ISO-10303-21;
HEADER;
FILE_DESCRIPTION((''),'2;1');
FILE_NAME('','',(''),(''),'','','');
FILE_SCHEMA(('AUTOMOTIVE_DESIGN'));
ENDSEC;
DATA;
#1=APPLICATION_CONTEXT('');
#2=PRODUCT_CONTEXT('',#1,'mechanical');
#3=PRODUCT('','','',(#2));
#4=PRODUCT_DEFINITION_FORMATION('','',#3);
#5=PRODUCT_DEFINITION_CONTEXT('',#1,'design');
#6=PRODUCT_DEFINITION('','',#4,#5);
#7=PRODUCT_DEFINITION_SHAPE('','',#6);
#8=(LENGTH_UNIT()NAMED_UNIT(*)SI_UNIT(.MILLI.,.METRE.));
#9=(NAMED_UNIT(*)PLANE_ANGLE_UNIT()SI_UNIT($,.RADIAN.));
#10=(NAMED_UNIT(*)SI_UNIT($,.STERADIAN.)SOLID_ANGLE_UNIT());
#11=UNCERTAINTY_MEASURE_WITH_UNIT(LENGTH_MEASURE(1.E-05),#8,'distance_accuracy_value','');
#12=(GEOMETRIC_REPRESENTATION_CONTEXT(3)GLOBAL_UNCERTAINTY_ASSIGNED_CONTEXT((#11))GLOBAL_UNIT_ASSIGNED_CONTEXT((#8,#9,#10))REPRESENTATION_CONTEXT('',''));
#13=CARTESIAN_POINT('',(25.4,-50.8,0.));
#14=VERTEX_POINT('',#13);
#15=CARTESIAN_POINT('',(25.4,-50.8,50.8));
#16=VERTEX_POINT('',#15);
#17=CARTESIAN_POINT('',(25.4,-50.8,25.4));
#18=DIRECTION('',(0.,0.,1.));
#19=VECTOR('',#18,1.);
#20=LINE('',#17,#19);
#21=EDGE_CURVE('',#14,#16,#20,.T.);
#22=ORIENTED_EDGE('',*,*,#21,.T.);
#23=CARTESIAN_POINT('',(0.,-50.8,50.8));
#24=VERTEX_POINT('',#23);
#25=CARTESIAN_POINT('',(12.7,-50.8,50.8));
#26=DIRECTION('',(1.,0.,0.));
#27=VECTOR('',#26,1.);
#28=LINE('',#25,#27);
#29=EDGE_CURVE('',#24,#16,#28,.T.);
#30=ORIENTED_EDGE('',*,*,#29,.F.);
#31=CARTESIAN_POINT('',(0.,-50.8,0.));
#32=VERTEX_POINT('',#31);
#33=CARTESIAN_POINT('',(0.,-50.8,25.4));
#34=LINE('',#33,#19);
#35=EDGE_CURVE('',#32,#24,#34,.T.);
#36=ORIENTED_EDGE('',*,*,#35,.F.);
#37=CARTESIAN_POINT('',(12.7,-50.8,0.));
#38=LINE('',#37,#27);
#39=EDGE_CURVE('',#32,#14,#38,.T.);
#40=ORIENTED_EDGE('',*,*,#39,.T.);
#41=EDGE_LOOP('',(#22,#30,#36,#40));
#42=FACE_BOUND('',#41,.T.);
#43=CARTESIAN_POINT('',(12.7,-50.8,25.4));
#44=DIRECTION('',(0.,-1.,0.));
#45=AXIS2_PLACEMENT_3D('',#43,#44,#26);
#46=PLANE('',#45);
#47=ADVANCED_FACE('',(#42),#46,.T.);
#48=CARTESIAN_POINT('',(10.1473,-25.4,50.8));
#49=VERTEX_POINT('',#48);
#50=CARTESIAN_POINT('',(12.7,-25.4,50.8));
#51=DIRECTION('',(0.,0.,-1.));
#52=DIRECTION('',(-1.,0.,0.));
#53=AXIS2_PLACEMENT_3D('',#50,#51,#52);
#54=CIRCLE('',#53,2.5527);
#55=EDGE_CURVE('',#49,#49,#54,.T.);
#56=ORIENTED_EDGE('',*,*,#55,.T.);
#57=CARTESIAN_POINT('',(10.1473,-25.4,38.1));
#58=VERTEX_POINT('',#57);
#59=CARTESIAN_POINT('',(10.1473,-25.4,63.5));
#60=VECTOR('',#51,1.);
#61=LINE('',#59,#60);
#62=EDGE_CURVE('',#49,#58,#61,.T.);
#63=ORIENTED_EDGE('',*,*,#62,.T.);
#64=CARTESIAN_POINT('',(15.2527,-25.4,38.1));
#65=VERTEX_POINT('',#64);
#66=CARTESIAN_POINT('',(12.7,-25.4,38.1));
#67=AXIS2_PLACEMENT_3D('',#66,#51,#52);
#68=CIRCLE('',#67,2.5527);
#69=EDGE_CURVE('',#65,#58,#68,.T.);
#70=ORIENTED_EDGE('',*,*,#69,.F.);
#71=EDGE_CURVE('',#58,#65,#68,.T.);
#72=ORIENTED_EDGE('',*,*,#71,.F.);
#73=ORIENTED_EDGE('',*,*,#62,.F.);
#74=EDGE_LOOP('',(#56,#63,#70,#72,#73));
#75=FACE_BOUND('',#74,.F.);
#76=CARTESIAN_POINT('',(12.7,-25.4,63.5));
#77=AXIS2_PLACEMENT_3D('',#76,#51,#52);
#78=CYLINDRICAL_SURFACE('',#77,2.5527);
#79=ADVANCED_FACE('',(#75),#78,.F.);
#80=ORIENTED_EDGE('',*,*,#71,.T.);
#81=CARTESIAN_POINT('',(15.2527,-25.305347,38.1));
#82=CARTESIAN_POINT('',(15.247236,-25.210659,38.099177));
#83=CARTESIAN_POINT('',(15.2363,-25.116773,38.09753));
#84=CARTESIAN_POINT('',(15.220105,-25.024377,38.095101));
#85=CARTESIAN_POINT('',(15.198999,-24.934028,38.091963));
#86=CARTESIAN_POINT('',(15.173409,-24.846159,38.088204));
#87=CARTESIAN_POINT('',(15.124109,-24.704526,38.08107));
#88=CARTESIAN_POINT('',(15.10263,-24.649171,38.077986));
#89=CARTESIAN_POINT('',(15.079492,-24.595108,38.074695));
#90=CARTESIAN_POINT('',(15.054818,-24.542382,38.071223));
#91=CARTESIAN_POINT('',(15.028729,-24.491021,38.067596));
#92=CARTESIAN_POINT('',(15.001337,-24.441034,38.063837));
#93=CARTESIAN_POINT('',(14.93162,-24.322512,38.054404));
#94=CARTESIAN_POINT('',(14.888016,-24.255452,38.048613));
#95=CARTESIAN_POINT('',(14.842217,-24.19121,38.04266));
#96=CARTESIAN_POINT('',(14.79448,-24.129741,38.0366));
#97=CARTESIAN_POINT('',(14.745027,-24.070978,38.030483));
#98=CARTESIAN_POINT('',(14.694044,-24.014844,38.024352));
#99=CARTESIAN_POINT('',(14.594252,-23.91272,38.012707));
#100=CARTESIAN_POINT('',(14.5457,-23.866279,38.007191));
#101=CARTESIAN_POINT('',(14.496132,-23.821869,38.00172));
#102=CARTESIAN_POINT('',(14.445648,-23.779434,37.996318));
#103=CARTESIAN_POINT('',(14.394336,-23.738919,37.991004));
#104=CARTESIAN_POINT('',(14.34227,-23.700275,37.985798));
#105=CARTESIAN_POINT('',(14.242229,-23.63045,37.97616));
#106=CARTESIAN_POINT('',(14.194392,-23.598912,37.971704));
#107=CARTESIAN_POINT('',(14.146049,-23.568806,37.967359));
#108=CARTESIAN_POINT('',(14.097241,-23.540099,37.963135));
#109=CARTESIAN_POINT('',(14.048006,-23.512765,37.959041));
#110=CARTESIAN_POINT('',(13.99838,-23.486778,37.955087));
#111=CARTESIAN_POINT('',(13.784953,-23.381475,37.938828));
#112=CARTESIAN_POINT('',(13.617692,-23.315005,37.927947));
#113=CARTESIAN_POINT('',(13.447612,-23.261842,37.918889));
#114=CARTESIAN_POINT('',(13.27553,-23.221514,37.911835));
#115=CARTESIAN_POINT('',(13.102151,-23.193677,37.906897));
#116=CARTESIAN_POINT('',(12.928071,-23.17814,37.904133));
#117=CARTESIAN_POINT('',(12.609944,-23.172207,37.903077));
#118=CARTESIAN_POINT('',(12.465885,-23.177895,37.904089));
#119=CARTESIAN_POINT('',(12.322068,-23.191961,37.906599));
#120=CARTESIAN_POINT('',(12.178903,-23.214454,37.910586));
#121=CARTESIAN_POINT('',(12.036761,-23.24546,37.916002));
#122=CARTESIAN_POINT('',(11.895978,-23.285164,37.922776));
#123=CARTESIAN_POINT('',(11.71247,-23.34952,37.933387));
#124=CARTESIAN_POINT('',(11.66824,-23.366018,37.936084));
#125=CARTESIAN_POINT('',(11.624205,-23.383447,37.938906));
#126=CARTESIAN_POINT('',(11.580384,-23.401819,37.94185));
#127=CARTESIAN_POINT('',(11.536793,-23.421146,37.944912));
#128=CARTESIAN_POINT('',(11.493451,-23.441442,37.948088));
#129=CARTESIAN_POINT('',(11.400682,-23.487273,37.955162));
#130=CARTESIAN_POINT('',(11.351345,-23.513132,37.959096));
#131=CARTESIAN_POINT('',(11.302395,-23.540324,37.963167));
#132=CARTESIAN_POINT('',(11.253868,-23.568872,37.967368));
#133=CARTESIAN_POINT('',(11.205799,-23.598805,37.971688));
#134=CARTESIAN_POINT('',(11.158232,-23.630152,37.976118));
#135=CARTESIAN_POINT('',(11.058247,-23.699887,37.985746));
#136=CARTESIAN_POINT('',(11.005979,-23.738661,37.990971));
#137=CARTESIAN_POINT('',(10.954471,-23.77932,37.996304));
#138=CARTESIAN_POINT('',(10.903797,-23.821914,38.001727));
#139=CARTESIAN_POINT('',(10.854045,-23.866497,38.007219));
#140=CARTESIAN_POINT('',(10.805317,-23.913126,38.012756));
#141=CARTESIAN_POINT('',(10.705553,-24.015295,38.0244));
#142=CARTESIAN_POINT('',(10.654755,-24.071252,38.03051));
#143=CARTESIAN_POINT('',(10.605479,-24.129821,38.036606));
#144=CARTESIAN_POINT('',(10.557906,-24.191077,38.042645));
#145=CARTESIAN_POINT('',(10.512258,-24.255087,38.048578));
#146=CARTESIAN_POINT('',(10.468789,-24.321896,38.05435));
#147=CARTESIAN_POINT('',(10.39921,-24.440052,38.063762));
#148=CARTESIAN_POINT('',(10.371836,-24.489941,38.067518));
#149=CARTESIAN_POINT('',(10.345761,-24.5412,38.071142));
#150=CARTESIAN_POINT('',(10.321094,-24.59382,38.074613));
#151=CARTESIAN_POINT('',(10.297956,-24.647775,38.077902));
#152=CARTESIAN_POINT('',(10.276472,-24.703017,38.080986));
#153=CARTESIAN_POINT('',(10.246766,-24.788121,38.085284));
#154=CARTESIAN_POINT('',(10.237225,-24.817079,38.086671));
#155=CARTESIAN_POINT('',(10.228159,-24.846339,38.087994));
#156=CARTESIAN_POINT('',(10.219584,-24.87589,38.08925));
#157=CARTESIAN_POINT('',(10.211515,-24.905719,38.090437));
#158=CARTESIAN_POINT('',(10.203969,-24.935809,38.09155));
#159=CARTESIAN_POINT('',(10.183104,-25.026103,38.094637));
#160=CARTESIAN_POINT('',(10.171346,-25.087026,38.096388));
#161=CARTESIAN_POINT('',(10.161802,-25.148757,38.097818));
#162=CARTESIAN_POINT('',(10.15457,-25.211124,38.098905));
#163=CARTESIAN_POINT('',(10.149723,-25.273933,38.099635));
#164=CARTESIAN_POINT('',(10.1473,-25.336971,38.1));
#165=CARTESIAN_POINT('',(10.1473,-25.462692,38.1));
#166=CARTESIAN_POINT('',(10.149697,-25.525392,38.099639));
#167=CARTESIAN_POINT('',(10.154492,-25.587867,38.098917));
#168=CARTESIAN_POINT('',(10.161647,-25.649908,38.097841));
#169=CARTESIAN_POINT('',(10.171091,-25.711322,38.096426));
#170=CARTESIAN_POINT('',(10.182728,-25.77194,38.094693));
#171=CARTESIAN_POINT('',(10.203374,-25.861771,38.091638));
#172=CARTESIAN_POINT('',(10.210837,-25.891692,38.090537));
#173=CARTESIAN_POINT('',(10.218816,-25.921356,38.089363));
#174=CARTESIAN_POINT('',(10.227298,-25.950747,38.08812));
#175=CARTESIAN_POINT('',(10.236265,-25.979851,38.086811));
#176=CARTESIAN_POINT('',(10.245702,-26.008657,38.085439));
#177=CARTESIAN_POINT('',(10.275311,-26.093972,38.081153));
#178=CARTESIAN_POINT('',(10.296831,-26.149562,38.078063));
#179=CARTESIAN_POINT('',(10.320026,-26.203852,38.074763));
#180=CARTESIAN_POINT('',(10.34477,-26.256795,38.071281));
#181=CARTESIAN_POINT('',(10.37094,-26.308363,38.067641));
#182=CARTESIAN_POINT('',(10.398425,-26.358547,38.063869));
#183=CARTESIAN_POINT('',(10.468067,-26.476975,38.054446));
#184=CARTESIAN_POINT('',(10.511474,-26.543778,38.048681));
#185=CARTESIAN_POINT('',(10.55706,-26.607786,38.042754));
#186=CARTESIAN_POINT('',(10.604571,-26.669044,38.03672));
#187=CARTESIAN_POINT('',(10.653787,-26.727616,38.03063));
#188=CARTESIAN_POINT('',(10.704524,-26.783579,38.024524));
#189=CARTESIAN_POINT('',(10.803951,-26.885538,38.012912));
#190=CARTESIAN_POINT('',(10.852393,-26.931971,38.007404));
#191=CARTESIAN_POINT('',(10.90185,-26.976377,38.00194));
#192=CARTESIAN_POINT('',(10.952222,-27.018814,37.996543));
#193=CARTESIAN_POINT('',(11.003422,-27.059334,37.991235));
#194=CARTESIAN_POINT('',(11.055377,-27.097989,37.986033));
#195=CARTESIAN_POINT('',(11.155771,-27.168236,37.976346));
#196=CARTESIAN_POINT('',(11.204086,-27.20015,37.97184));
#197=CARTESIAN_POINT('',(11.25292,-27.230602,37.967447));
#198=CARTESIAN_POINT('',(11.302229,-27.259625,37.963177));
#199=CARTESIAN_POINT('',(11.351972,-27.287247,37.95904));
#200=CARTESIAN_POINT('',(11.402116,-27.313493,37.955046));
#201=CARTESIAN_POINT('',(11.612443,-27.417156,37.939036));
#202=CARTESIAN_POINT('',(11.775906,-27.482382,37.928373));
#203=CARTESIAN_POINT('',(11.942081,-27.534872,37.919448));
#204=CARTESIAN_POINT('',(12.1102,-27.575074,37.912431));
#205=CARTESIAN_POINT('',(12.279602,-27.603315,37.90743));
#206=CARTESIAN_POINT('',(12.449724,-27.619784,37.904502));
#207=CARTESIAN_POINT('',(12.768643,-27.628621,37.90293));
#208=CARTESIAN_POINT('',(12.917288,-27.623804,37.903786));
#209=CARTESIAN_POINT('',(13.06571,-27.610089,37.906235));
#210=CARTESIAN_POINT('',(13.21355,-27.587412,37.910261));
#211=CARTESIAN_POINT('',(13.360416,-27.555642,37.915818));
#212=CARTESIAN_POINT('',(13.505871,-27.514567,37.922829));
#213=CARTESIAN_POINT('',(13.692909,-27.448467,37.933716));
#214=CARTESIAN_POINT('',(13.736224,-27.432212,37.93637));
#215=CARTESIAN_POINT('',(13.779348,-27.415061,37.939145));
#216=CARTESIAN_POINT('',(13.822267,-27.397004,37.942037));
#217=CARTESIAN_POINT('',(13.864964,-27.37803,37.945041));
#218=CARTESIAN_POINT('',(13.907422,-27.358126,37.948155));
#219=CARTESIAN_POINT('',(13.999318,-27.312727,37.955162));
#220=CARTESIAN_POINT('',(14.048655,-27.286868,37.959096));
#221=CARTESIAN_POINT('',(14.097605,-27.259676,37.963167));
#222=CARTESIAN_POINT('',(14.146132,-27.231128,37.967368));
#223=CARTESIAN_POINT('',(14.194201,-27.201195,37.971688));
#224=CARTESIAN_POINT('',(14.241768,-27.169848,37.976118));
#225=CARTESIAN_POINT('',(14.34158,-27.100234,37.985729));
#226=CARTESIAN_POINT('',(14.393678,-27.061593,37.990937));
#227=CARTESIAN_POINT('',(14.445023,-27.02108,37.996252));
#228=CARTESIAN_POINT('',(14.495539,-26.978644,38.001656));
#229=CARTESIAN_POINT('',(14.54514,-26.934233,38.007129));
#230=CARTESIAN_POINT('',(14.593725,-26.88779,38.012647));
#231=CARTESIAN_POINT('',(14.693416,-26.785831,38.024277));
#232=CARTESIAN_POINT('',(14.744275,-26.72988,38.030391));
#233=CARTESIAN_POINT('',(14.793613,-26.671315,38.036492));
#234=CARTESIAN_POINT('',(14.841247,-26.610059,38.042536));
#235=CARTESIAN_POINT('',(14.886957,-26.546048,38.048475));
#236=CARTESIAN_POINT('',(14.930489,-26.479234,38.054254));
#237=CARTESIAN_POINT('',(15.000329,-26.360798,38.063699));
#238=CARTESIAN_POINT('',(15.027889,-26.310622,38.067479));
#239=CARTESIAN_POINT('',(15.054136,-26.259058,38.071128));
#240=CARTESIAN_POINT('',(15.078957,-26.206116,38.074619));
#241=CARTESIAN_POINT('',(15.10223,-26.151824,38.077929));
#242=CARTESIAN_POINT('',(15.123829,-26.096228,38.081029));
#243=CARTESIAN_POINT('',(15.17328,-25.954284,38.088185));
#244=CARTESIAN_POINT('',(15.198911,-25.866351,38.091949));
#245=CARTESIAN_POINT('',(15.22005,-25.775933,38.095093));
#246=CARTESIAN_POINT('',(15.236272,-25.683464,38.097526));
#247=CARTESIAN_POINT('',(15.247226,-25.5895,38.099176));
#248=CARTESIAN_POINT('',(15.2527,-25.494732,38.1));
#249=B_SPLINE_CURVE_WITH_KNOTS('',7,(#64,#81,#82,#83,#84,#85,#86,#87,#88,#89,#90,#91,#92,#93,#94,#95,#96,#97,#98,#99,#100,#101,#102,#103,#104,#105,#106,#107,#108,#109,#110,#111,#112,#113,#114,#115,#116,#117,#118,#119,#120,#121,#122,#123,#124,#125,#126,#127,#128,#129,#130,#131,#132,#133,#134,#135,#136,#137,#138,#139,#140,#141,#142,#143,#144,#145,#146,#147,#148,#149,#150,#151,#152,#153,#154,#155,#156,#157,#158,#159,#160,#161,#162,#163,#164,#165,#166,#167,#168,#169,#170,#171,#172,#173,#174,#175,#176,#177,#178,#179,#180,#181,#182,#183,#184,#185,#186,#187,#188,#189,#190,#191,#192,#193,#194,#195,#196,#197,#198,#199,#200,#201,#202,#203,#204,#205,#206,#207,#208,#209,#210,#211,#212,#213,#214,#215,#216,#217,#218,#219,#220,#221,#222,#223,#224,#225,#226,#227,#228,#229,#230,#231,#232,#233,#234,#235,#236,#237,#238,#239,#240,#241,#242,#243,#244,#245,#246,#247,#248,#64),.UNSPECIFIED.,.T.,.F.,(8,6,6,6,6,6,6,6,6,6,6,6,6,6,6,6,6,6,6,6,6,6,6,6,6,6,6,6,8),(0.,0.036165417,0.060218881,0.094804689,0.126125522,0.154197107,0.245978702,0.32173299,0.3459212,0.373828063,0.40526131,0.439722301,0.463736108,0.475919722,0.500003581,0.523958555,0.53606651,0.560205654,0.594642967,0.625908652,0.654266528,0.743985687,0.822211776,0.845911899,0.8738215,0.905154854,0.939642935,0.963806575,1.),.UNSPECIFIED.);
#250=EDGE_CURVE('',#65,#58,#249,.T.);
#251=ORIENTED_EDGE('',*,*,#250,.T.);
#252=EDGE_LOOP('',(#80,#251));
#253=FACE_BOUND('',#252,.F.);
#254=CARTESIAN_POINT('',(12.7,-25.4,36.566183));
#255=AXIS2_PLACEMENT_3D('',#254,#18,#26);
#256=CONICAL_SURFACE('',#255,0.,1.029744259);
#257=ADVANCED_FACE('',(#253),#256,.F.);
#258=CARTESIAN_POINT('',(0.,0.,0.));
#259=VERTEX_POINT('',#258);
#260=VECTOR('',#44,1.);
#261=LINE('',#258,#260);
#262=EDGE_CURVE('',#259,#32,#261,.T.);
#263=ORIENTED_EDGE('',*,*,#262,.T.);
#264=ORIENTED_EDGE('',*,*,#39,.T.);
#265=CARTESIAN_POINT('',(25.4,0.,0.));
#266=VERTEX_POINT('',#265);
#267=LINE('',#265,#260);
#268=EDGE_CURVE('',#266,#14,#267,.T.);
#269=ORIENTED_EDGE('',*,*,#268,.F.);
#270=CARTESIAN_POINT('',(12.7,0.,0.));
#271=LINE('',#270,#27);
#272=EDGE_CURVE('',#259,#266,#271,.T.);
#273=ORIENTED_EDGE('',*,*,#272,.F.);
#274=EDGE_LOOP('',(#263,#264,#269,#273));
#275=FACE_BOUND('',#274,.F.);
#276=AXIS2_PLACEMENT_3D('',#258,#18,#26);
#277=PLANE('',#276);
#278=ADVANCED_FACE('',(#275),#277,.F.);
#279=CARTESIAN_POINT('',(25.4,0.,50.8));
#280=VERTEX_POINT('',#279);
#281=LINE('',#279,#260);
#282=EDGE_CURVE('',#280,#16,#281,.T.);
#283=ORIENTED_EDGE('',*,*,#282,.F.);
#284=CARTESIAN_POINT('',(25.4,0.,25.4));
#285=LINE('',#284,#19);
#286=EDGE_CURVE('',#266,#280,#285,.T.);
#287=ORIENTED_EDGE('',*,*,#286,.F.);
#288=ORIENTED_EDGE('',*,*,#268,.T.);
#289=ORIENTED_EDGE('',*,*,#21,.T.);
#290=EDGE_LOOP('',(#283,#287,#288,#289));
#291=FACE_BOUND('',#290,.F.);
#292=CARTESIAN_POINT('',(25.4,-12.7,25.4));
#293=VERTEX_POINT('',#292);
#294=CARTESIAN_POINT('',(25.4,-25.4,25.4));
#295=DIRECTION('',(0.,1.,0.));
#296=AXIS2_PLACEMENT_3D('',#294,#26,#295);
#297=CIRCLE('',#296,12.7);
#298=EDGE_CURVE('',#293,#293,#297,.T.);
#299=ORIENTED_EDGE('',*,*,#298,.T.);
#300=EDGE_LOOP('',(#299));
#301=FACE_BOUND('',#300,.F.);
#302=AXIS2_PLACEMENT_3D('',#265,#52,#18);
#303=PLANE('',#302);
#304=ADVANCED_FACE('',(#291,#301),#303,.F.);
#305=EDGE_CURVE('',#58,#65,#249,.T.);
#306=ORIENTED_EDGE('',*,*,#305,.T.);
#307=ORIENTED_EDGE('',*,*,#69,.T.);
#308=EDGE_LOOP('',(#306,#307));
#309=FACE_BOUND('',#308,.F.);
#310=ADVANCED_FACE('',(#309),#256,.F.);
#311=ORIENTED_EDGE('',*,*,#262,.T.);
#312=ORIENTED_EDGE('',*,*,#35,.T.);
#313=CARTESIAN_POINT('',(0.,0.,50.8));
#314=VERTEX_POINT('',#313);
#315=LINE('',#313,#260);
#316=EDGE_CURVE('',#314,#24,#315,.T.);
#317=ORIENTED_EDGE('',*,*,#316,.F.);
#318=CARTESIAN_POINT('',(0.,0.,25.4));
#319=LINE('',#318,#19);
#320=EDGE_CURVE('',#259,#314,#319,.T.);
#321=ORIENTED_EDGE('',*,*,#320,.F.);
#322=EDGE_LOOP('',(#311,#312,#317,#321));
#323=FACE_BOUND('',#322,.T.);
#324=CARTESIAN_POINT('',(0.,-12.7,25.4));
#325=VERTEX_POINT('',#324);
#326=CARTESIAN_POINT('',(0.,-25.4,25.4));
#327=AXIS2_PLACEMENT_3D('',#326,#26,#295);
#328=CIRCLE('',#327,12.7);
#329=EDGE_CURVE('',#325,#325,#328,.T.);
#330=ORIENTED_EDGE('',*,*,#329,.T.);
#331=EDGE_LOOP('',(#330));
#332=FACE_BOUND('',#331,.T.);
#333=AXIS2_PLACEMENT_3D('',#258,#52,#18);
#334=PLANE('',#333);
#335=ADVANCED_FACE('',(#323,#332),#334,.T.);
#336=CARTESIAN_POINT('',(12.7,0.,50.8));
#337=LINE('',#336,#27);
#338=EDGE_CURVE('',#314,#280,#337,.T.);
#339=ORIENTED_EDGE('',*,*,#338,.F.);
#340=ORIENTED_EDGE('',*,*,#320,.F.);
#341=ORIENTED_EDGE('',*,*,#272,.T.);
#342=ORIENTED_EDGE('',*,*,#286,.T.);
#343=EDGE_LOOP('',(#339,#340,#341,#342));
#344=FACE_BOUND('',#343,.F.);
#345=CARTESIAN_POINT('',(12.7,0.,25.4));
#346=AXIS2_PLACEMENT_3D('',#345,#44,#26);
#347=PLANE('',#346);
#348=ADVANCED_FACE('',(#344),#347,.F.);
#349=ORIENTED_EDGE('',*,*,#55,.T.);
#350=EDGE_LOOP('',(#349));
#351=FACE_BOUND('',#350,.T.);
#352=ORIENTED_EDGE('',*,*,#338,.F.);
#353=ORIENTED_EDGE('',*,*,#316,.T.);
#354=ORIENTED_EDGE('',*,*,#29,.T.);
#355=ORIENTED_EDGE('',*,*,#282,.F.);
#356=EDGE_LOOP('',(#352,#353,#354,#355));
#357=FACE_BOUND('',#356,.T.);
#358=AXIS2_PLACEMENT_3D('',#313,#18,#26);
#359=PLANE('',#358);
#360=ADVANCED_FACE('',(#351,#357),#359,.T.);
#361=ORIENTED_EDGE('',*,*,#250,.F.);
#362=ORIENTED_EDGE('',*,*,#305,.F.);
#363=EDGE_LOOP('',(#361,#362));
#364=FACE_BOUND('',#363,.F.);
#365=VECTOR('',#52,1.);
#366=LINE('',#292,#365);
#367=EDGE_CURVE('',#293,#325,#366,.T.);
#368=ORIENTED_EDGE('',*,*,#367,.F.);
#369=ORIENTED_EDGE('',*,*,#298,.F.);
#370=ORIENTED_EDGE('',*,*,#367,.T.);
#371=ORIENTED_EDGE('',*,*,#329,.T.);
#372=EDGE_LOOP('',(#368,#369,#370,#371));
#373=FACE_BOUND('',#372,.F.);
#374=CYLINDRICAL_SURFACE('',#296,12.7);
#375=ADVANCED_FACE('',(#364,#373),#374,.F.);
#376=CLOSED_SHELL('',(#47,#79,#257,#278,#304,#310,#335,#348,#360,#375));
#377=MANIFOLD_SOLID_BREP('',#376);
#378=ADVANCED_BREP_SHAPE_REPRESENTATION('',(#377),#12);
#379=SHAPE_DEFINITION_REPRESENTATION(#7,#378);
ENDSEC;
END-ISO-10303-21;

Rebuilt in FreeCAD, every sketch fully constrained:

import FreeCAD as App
import Part
import Sketcher

V = App.Vector
Q = App.Units.Quantity


def add_polygon(sketch, points):
    """Adds a closed chain of lines whose ends are joined by coincident constraints."""
    first, n = sketch.GeometryCount, len(points)
    for a, b in zip(points, points[1:] + points[:1]):
        sketch.addGeometry(Part.LineSegment(App.Vector(*a, 0), App.Vector(*b, 0)), False)
    for i in range(n):
        sketch.addConstraint(Sketcher.Constraint("Coincident", first + i, 2, first + (i + 1) % n, 1))

doc = App.newDocument("Part")
body = doc.addObject("PartDesign::Body", "Body")

sketch1 = body.newObject("Sketcher::SketchObject", "Sketch")
sketch1.AttachmentSupport = (doc.getObject("XZ_Plane"), [""])
sketch1.MapMode = "FlatFace"
add_polygon(sketch1, [(0, 51), (0, 0), (25, 0), (25, 51)])
sketch1.addConstraint(Sketcher.Constraint("Vertical", 0))
sketch1.addConstraint(Sketcher.Constraint("Horizontal", 1))
sketch1.addConstraint(Sketcher.Constraint("Vertical", 2))
sketch1.addConstraint(Sketcher.Constraint("Horizontal", 3))
sketch1.addConstraint(Sketcher.Constraint("Coincident", 0, 2, -1, 1))
sketch1.addConstraint(Sketcher.Constraint("DistanceX", 1, 1, 1, 2, Q("1 in")))
sketch1.addConstraint(Sketcher.Constraint("DistanceY", 0, 2, 0, 1, Q("2 in")))
pad1 = body.newObject("PartDesign::Pad", "Pad")
pad1.Profile = sketch1
pad1.Length = Q("2 in")

sketch2 = body.newObject("Sketcher::SketchObject", "Sketch001")
sketch2.AttachmentSupport = (doc.getObject("YZ_Plane"), [""])
sketch2.MapMode = "FlatFace"
sketch2.AttachmentOffset = App.Placement(V(0, 0, 1 * 25.4), App.Rotation())
sketch2.addGeometry(Part.Circle(V(-25, 25, 0), V(0, 0, 1), 13), False)
sketch2.addConstraint(Sketcher.Constraint("Diameter", 0, Q("1 in")))
sketch2.addConstraint(Sketcher.Constraint("DistanceX", 0, 3, -1, 1, Q("1 in")))
sketch2.addConstraint(Sketcher.Constraint("DistanceY", -1, 1, 0, 3, Q("1 in")))
pocket1 = body.newObject("PartDesign::Pocket", "Pocket")
pocket1.Profile = sketch2
pocket1.Type = "ThroughAll"

sketch3 = body.newObject("Sketcher::SketchObject", "Sketch002")
sketch3.AttachmentSupport = (doc.getObject("XY_Plane"), [""])
sketch3.MapMode = "FlatFace"
sketch3.AttachmentOffset = App.Placement(V(0, 0, 2 * 25.4), App.Rotation())
sketch3.addGeometry(Part.Circle(V(12.7, -25.4, 0), V(0, 0, 1), 2.6), False)
sketch3.addConstraint(Sketcher.Constraint("Diameter", 0, Q("0.201 in")))
sketch3.addConstraint(Sketcher.Constraint("DistanceY", 0, 3, -1, 1, Q("1 in")))
sketch3.addConstraint(Sketcher.Constraint("DistanceX", -1, 1, 0, 3, Q("0.5 in")))
doc.recompute()
hole = body.newObject("PartDesign::Hole", "Hole")
hole.Profile = sketch3
hole.ThreadType = "None"
hole.Diameter = Q("0.201 in")
hole.DepthType = "Dimension"
hole.Depth = Q("0.5 in")
hole.DrillPoint = "Angled"
hole.DrillPointAngle = 118

doc.recompute()
